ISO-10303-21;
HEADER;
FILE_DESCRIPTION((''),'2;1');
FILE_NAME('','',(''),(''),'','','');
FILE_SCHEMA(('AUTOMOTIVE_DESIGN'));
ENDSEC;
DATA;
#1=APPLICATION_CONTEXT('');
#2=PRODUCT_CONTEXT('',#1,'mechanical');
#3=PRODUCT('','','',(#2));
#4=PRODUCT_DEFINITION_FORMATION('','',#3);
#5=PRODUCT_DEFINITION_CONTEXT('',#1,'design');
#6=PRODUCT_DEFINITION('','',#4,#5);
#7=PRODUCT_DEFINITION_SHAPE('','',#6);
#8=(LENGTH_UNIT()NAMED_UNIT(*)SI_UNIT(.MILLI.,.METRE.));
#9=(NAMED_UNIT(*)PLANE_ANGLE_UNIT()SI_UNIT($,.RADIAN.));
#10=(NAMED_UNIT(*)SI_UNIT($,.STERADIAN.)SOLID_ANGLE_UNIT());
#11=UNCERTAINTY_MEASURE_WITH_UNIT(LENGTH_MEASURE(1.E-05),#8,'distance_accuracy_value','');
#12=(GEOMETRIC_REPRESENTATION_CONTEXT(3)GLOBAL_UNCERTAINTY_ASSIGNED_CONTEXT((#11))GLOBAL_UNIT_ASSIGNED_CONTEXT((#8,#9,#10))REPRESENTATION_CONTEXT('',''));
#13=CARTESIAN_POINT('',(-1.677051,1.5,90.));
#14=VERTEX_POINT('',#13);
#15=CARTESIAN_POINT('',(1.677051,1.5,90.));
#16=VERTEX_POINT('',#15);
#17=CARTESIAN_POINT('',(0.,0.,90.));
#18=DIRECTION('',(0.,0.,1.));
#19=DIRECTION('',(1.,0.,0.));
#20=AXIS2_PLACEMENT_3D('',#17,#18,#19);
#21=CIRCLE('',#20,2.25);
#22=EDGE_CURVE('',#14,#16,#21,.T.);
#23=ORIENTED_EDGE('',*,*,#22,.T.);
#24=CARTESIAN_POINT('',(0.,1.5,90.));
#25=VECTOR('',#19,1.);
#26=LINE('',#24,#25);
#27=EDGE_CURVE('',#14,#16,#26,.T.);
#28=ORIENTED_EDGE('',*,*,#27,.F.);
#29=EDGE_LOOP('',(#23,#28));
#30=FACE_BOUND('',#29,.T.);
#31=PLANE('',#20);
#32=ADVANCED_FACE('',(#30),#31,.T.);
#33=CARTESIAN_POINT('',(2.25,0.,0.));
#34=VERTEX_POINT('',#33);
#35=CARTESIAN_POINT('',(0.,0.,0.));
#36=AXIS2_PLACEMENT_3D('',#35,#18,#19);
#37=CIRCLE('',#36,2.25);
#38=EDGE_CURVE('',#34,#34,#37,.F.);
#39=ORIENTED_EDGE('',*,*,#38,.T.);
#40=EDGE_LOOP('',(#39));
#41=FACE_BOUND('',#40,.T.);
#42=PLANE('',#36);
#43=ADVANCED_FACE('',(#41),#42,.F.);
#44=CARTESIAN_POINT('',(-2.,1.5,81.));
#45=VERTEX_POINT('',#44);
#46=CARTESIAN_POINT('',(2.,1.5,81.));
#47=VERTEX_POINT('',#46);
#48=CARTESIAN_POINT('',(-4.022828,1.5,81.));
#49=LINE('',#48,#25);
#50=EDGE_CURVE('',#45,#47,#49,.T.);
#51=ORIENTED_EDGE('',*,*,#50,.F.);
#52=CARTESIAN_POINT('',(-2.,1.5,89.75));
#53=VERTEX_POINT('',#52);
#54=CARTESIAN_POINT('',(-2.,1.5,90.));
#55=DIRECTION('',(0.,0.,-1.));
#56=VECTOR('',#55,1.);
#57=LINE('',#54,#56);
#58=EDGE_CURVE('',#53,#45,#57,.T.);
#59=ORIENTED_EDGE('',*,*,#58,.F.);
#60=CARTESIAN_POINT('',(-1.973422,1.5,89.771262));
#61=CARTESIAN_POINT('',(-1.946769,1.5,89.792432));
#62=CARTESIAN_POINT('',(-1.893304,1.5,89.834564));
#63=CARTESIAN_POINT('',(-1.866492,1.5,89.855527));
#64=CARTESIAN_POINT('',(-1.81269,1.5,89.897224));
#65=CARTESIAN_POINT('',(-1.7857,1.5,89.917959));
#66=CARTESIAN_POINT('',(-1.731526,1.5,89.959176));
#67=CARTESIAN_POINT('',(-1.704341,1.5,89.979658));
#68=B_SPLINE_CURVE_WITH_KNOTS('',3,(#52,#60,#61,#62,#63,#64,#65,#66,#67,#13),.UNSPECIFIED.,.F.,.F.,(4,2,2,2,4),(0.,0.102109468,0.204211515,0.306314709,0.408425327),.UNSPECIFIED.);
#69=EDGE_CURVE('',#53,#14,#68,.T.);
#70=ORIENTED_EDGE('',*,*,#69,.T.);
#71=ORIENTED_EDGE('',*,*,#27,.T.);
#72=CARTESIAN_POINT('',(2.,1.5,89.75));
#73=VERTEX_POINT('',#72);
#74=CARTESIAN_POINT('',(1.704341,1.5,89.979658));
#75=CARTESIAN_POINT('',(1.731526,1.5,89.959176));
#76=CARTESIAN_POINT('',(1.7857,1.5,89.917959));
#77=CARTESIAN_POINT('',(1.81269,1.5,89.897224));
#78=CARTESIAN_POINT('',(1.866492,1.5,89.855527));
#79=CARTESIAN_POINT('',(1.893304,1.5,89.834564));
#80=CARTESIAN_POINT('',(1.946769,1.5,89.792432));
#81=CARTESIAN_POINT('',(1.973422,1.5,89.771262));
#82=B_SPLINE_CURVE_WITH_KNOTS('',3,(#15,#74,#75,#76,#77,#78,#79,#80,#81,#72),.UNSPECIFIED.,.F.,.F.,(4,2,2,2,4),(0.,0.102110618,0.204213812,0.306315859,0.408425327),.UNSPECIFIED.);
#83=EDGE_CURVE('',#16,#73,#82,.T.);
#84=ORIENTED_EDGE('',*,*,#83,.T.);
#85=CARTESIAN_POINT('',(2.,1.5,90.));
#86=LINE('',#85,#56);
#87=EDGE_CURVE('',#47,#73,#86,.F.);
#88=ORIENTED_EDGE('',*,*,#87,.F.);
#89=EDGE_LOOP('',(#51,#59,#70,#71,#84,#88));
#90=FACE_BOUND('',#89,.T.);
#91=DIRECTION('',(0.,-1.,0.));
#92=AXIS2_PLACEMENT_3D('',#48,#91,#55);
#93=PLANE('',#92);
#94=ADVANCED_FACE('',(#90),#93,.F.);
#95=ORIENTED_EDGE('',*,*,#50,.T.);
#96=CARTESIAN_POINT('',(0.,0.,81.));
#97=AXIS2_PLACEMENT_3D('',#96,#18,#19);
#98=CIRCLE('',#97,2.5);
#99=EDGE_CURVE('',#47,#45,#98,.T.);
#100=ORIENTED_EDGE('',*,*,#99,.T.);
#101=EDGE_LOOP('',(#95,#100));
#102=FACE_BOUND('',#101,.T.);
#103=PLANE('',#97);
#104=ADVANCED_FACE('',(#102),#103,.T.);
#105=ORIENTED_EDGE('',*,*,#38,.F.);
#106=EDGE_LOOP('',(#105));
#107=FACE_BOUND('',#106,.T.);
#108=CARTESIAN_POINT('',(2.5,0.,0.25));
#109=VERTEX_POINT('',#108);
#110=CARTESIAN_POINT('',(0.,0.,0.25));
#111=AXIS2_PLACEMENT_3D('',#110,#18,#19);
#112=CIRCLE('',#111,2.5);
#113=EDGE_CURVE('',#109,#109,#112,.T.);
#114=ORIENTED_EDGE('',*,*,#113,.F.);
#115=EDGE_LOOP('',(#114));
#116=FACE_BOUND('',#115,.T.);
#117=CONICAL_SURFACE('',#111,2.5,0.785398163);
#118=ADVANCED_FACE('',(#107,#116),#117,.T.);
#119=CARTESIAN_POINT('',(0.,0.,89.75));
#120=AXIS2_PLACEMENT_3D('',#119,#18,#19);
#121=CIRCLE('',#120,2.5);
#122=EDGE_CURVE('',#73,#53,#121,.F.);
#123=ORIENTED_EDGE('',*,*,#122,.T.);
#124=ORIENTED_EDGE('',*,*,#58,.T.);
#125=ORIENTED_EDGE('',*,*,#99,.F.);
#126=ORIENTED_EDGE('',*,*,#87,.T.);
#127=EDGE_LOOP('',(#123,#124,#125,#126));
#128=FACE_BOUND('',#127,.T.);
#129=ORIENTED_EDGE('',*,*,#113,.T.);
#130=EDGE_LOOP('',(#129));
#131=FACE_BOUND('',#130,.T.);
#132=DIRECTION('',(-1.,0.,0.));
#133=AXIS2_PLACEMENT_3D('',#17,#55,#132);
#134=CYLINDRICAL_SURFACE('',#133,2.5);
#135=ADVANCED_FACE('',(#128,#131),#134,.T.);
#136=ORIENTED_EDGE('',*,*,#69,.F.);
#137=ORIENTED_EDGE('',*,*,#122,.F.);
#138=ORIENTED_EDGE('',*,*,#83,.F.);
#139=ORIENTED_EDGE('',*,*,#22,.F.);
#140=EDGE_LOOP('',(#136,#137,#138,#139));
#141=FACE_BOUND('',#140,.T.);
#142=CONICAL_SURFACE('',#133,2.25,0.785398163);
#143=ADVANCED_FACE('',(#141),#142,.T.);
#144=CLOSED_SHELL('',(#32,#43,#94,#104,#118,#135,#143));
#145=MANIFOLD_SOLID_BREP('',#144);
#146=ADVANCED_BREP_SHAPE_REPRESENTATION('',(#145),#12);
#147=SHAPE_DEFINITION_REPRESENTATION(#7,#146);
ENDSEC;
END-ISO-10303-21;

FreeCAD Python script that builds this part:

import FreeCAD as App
import Part
import Sketcher

V = App.Vector
Q = App.Units.Quantity


def edges_at(feature, points):
    """Names of the edges that pass closest to the given points."""
    edges = feature.Shape.Edges
    near = lambda p: min(range(len(edges)), key=lambda i: edges[i].distToShape(Part.Vertex(*p))[0])
    return sorted({f"Edge{near(p) + 1}" for p in points})


def add_polygon(sketch, points):
    """Adds a closed chain of lines whose ends are joined by coincident constraints."""
    first, n = sketch.GeometryCount, len(points)
    for a, b in zip(points, points[1:] + points[:1]):
        sketch.addGeometry(Part.LineSegment(App.Vector(*a, 0), App.Vector(*b, 0)), False)
    for i in range(n):
        sketch.addConstraint(Sketcher.Constraint("Coincident", first + i, 2, first + (i + 1) % n, 1))

doc = App.newDocument("Part")
body = doc.addObject("PartDesign::Body", "Body")

sketch1 = body.newObject("Sketcher::SketchObject", "Sketch")
sketch1.AttachmentSupport = (doc.getObject("XY_Plane"), [""])
sketch1.MapMode = "FlatFace"
sketch1.addGeometry(Part.Circle(V(0, 0, 0), V(0, 0, 1), 2.5), False)
sketch1.addConstraint([
    Sketcher.Constraint("Coincident", 0, 3, -1, 1),
    Sketcher.Constraint("Diameter", 0, Q("5 mm")),
])
pad1 = body.newObject("PartDesign::Pad", "Pad")
pad1.Profile = sketch1
pad1.Length = 90

sketch2 = body.newObject("Sketcher::SketchObject", "Sketch001")
sketch2.AttachmentSupport = (doc.getObject("XY_Plane"), [""])
sketch2.MapMode = "FlatFace"
sketch2.AttachmentOffset = App.Placement(V(0, 0, 90), App.Rotation())
add_polygon(sketch2, [(-4.022828, 2.5), (-4.022828, 1.5), (3.919678, 1.5), (3.919678, 2.5)])
sketch2.addConstraint([
    Sketcher.Constraint("Vertical", 0),
    Sketcher.Constraint("Horizontal", 1),
    Sketcher.Constraint("Vertical", 2),
    Sketcher.Constraint("Horizontal", 3),
    Sketcher.Constraint("DistanceY", 0, 2, 0, 1, Q("1 mm")),
    Sketcher.Constraint("DistanceY", -1, 1, 0, 2, Q("1.5 mm")),
    Sketcher.Constraint("DistanceX", 1, 1, 1, 2, Q("7.942506 mm")),
    Sketcher.Constraint("DistanceX", -1, 1, 1, 2, Q("3.919678 mm")),
])
pocket1 = body.newObject("PartDesign::Pocket", "Pocket")
pocket1.Profile = sketch2
pocket1.Length = 9
doc.recompute()

chamfer = body.newObject("PartDesign::Chamfer", "Chamfer")
chamfer.Base = (pocket1, edges_at(pocket1, [(2.5, 0, 0), (0.791, -2.372, 90)]))
chamfer.Size = 0.25

doc.recompute()
